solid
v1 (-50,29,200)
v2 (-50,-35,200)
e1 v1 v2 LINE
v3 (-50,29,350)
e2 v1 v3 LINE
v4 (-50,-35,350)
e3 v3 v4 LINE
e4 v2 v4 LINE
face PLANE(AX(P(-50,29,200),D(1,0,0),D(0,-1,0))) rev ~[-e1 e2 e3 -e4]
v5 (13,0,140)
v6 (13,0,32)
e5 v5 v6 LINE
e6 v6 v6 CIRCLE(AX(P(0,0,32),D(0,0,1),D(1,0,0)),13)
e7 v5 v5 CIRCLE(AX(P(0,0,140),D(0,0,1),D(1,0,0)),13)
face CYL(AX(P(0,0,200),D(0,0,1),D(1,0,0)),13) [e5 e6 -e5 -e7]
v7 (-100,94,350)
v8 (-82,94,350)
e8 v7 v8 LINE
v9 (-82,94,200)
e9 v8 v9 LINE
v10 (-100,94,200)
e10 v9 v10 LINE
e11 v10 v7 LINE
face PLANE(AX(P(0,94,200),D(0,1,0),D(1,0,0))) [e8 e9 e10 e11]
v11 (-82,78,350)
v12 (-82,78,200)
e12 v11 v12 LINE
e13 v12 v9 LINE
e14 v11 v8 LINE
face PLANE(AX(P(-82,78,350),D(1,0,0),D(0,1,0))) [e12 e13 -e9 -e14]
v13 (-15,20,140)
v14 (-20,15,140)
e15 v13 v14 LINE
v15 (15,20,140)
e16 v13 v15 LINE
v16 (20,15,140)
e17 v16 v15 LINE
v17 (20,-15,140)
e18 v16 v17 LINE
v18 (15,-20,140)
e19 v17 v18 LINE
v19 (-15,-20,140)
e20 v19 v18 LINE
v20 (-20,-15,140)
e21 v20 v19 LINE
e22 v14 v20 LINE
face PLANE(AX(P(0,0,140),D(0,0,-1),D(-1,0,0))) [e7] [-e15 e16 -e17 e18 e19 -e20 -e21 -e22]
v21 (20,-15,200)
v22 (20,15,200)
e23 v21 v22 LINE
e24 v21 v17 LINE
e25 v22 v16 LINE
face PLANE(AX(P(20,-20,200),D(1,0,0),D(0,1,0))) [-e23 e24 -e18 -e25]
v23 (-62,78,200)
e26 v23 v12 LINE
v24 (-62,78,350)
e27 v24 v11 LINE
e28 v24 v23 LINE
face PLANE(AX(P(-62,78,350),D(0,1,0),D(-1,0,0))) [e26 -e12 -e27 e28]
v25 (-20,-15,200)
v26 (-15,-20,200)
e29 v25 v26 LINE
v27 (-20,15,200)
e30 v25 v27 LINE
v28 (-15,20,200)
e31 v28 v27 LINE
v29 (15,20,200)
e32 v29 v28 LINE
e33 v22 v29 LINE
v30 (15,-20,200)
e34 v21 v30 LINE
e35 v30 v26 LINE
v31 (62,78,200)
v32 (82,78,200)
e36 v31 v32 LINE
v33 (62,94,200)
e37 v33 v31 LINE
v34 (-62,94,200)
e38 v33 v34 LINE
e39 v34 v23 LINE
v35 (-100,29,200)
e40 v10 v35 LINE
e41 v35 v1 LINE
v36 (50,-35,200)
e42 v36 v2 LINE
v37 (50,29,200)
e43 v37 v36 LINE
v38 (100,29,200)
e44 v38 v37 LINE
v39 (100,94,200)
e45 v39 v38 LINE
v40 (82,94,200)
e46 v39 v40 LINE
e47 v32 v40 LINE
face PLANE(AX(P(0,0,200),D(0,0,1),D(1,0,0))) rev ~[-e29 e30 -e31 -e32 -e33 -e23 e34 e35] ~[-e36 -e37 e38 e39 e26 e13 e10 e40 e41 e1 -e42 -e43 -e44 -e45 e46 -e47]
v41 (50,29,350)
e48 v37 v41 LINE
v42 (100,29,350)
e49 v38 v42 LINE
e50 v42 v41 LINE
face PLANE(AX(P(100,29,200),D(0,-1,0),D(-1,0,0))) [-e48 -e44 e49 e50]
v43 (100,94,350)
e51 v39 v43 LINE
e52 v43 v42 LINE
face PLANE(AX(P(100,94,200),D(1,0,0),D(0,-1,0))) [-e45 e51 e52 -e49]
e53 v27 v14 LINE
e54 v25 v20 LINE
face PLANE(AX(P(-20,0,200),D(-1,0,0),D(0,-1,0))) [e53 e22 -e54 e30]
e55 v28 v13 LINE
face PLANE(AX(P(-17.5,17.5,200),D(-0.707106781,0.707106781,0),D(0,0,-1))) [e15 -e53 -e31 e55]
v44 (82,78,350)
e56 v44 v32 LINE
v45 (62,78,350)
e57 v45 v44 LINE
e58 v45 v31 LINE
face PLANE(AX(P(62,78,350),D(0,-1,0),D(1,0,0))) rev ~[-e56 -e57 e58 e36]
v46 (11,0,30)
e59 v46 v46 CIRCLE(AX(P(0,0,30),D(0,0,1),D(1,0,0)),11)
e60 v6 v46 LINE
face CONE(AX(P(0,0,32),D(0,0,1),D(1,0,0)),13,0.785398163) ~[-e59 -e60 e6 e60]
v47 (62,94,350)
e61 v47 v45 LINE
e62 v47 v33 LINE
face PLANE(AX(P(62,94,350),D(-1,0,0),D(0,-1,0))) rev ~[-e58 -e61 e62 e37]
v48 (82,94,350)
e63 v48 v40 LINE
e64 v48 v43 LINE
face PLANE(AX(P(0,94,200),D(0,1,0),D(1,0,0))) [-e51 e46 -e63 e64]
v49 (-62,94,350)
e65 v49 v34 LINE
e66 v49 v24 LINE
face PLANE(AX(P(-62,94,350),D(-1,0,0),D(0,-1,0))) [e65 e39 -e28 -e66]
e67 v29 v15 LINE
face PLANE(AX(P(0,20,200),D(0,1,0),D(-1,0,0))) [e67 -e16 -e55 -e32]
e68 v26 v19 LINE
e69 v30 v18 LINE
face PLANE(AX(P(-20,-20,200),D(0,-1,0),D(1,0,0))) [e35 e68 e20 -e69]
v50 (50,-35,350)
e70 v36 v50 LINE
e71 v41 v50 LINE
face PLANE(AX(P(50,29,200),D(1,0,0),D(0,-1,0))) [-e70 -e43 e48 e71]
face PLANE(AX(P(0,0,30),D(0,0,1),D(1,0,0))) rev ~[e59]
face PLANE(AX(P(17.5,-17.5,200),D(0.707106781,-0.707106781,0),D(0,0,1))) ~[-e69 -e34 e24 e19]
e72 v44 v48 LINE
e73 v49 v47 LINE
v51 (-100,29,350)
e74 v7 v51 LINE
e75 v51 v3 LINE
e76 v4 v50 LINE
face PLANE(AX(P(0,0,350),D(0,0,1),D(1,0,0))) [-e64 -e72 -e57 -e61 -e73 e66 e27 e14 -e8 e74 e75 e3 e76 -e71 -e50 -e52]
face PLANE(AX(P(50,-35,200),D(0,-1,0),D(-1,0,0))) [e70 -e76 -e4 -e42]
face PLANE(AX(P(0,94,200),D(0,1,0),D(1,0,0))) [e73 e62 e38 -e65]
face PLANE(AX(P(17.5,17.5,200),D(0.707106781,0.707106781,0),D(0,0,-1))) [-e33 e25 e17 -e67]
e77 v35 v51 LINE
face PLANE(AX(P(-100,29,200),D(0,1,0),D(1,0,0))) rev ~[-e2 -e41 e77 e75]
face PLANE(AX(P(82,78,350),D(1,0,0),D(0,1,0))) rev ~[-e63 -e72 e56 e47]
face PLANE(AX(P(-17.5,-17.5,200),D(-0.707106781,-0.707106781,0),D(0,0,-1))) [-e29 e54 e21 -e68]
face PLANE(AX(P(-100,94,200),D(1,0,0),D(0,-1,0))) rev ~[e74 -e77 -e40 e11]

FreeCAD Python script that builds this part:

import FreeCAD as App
import Part
import Sketcher


def edges_at(feature, points):
    """Names of the edges that pass closest to the given points."""
    edges = feature.Shape.Edges
    near = lambda p: min(range(len(edges)), key=lambda i: edges[i].distToShape(Part.Vertex(*p))[0])
    return sorted({f"Edge{near(p) + 1}" for p in points})


def add_polygon(sketch, points):
    """Adds a closed chain of lines whose ends are joined by coincident constraints."""
    first, n = sketch.GeometryCount, len(points)
    for a, b in zip(points, points[1:] + points[:1]):
        sketch.addGeometry(Part.LineSegment(App.Vector(*a, 0), App.Vector(*b, 0)), False)
    for i in range(n):
        sketch.addConstraint(Sketcher.Constraint("Coincident", first + i, 2, first + (i + 1) % n, 1))

doc = App.newDocument("Part")
body = doc.addObject("PartDesign::Body", "Body")

# Sketch on XY plane
sketch1 = doc.addObject("Sketcher::SketchObject", "Sketch")
body.addObject(sketch1)
sketch1.AttachmentSupport = (doc.XY_Plane, [""])
sketch1.MapMode = "FlatFace"
sketch1.AttachmentOffset = App.Placement(App.Vector(0, 0, 200), App.Rotation())
add_polygon(sketch1, [(100, 94), (-100, 94), (-100, 29), (-50, 29), (-50, -35), (50, -35), (50, 29), (100, 29)])  # lines 0-7
sketch1.addConstraint(Sketcher.Constraint("Horizontal", 0))
sketch1.addConstraint(Sketcher.Constraint("Vertical", 1))
sketch1.addConstraint(Sketcher.Constraint("Horizontal", 2))
sketch1.addConstraint(Sketcher.Constraint("Vertical", 3))
sketch1.addConstraint(Sketcher.Constraint("Horizontal", 4))
sketch1.addConstraint(Sketcher.Constraint("Vertical", 5))
sketch1.addConstraint(Sketcher.Constraint("Horizontal", 6))
sketch1.addConstraint(Sketcher.Constraint("Vertical", 7))
sketch1.addConstraint(Sketcher.Constraint("Symmetric", 2, 2, 5, 2, -2))
sketch1.addConstraint(Sketcher.Constraint("Equal", 2, 6))
sketch1.addConstraint(Sketcher.Constraint("DistanceX", 2, 1, 2, 2, 50.0))
sketch1.addConstraint(Sketcher.Constraint("DistanceX", 4, 1, 4, 2, 100.0))
sketch1.addConstraint(Sketcher.Constraint("DistanceY", 1, 2, 1, 1, 65.0))
sketch1.addConstraint(Sketcher.Constraint("DistanceY", 3, 2, 3, 1, 64.0))
sketch1.addConstraint(Sketcher.Constraint("DistanceY", -1, 1, 0, 2, 94.0))
pad1 = doc.addObject("PartDesign::Pad", "Pad")
body.addObject(pad1)
pad1.Profile = sketch1
pad1.Length = 150

# Sketch on XY plane
sketch2 = doc.addObject("Sketcher::SketchObject", "Sketch001")
body.addObject(sketch2)
sketch2.AttachmentSupport = (doc.XY_Plane, [""])
sketch2.MapMode = "FlatFace"
sketch2.AttachmentOffset = App.Placement(App.Vector(0, 0, 200), App.Rotation())
sketch2.addGeometry(Part.Circle(App.Vector(0, 0, 0), App.Vector(0, 0, 1), 13), False)
sketch2.addConstraint(Sketcher.Constraint("Coincident", 0, 3, -1, 1))
sketch2.addConstraint(Sketcher.Constraint("Diameter", 0, 26.0))
pad2 = doc.addObject("PartDesign::Pad", "Pad001")
body.addObject(pad2)
pad2.Profile = sketch2
pad2.Length = 170
pad2.Reversed = True

# Sketch on XY plane
sketch3 = doc.addObject("Sketcher::SketchObject", "Sketch002")
body.addObject(sketch3)
sketch3.AttachmentSupport = (doc.XY_Plane, [""])
sketch3.MapMode = "FlatFace"
sketch3.AttachmentOffset = App.Placement(App.Vector(0, 0, 200), App.Rotation())
add_polygon(sketch3, [(-20, -20), (-20, 20), (20, 20), (20, -20)])  # lines 0-3
sketch3.addConstraint(Sketcher.Constraint("Vertical", 0))
sketch3.addConstraint(Sketcher.Constraint("Horizontal", 1))
sketch3.addConstraint(Sketcher.Constraint("Vertical", 2))
sketch3.addConstraint(Sketcher.Constraint("Horizontal", 3))
sketch3.addConstraint(Sketcher.Constraint("Symmetric", 0, 2, 2, 2, -1, 1))
sketch3.addConstraint(Sketcher.Constraint("Equal", 3, 0))
sketch3.addConstraint(Sketcher.Constraint("DistanceX", 1, 1, 1, 2, 40.0))
pad3 = doc.addObject("PartDesign::Pad", "Pad002")
body.addObject(pad3)
pad3.Profile = sketch3
pad3.Length = 60
pad3.Reversed = True
doc.recompute()

chamfer = doc.addObject("PartDesign::Chamfer", "Chamfer")
body.addObject(chamfer)
chamfer.Base = (pad3, edges_at(pad3, [
    (-20, -20, 170),
    (-20, 20, 170),
    (20, -20, 170),
    (20, 20, 170),
]))
chamfer.Size = 5
doc.recompute()

chamfer2 = doc.addObject("PartDesign::Chamfer", "Chamfer001")
body.addObject(chamfer2)
chamfer2.Base = (chamfer, edges_at(chamfer, [(-13, 0, 30)]))
chamfer2.Size = 2

# Sketch on XY plane
sketch4 = doc.addObject("Sketcher::SketchObject", "Sketch003")
body.addObject(sketch4)
sketch4.AttachmentSupport = (doc.XY_Plane, [""])
sketch4.MapMode = "FlatFace"
sketch4.AttachmentOffset = App.Placement(App.Vector(0, 0, 350), App.Rotation())
add_polygon(sketch4, [(82, 78), (82, 94), (62, 94), (62, 78)])  # lines 0-3
add_polygon(sketch4, [(-62, 78), (-62, 94), (-82, 94), (-82, 78)])  # lines 4-7
sketch4.addConstraint(Sketcher.Constraint("Vertical", 0))
sketch4.addConstraint(Sketcher.Constraint("Horizontal", 1))
sketch4.addConstraint(Sketcher.Constraint("Vertical", 2))
sketch4.addConstraint(Sketcher.Constraint("Horizontal", 3))
sketch4.addConstraint(Sketcher.Constraint("Vertical", 4))
sketch4.addConstraint(Sketcher.Constraint("Horizontal", 5))
sketch4.addConstraint(Sketcher.Constraint("Vertical", 6))
sketch4.addConstraint(Sketcher.Constraint("Horizontal", 7))
sketch4.addConstraint(Sketcher.Constraint("Symmetric", 1, 2, 4, 2, -2))
sketch4.addConstraint(Sketcher.Constraint("Symmetric", 3, 2, 6, 2, -2))
sketch4.addConstraint(Sketcher.Constraint("DistanceX", 1, 2, 1, 1, 20.0))
sketch4.addConstraint(Sketcher.Constraint("DistanceY", 0, 1, 0, 2, 16.0))
sketch4.addConstraint(Sketcher.Constraint("DistanceX", -1, 1, 0, 2, 82.0))
sketch4.addConstraint(Sketcher.Constraint("DistanceY", -1, 1, 0, 2, 94.0))
pocket1 = doc.addObject("PartDesign::Pocket", "Pocket")
body.addObject(pocket1)
pocket1.Profile = sketch4
pocket1.Type = "ThroughAll"

doc.recompute()
